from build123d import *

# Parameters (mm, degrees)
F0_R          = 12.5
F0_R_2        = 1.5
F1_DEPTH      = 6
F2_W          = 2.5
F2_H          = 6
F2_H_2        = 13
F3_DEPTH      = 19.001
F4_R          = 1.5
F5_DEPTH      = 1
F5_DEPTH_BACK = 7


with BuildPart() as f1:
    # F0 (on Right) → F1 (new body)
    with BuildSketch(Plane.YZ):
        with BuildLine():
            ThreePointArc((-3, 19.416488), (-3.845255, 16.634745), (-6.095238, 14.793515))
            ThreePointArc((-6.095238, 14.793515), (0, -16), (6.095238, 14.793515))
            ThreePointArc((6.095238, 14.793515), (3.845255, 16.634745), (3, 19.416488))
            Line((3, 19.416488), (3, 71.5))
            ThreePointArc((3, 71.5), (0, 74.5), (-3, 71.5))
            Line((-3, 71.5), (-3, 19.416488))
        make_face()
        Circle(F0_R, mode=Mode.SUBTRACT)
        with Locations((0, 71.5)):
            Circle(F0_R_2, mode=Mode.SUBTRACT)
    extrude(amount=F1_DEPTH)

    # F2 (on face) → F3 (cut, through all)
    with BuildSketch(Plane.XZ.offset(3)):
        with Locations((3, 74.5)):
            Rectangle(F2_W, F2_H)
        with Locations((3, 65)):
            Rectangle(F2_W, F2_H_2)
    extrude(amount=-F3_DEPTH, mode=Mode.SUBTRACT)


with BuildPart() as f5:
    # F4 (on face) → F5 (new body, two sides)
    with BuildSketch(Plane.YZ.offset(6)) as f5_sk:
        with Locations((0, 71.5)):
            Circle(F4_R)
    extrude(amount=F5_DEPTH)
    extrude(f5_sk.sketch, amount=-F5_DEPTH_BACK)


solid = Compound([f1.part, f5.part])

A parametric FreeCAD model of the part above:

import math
import FreeCAD as App
import Part
import Sketcher
from FreeCAD import Vector

doc = App.newDocument("Part")
body = doc.addObject("PartDesign::Body", "Body")

# Sketch on YZ plane
sketch1 = doc.addObject("Sketcher::SketchObject", "Sketch")
body.addObject(sketch1)
sketch1.AttachmentSupport = (doc.YZ_Plane, [""])
sketch1.MapMode = "FlatFace"
sketch1.addGeometry([
    Part.ArcOfCircle(Part.Circle(Vector(-8, 19.4, 0), Vector(0, 0, 1), 5), math.radians(-68), math.radians(0)),  # 0
    Part.ArcOfCircle(Part.Circle(Vector(0, 0, 0), Vector(0, 0, 1), 16), math.radians(112), math.radians(428)),  # 1
    Part.ArcOfCircle(Part.Circle(Vector(8, 19.4, 0), Vector(0, 0, 1), 5), math.radians(180), math.radians(248)),  # 2
    Part.LineSegment(Vector(3, 19.4, 0), Vector(3, 71.5, 0)),  # 3
    Part.ArcOfCircle(Part.Circle(Vector(0, 71.5, 0), Vector(0, 0, 1), 3), math.radians(0), math.radians(180)),  # 4
    Part.LineSegment(Vector(-3, 71.5, 0), Vector(-3, 19.4, 0)),  # 5
    Part.Circle(Vector(0, 0, 0), Vector(0, 0, 1), 12.5),  # 6
    Part.Circle(Vector(0, 71.5, 0), Vector(0, 0, 1), 1.5),  # 7
], False)
sketch1.addConstraint([
    Sketcher.Constraint("Tangent", 0, 1, 1, 1),
    Sketcher.Constraint("Tangent", 1, 2, 2, 2),
    Sketcher.Constraint("Tangent", 2, 1, 3, 1),
    Sketcher.Constraint("Tangent", 3, 2, 4, 1),
    Sketcher.Constraint("Tangent", 4, 2, 5, 1),
    Sketcher.Constraint("Tangent", 5, 2, 0, 2),
    Sketcher.Constraint("Vertical", 3),
    Sketcher.Constraint("Vertical", 5),
    Sketcher.Constraint("Coincident", 1, 3, -1, 1),
    Sketcher.Constraint("Coincident", 6, 3, -1, 1),
    Sketcher.Constraint("Coincident", 7, 3, 4, 3),
    Sketcher.Constraint("Equal", 0, 2),
    Sketcher.Constraint("PointOnObject", 4, 3, -2),
    Sketcher.Constraint("Diameter", 6, 25.0),
    Sketcher.Constraint("Diameter", 7, 3.0),
    Sketcher.Constraint("Radius", 0, 4.999999),
    Sketcher.Constraint("Radius", 1, 16.0),
    Sketcher.Constraint("Radius", 4, 3.0),
    Sketcher.Constraint("DistanceY", -1, 1, 4, 3, 71.5),
])
pad1 = doc.addObject("PartDesign::Pad", "Pad")
body.addObject(pad1)
pad1.Profile = sketch1
pad1.Length = 6

# Sketch on XZ plane
sketch2 = doc.addObject("Sketcher::SketchObject", "Sketch001")
body.addObject(sketch2)
sketch2.AttachmentSupport = (doc.XZ_Plane, [""])
sketch2.MapMode = "FlatFace"
sketch2.AttachmentOffset = App.Placement(Vector(0, 0, 3), App.Rotation())
sketch2.addGeometry([
    Part.LineSegment(Vector(1.8, 77.5, 0), Vector(1.8, 58.5, 0)),
    Part.LineSegment(Vector(1.8, 58.5, 0), Vector(4.2, 58.5, 0)),
    Part.LineSegment(Vector(4.2, 58.5, 0), Vector(4.2, 77.5, 0)),
    Part.LineSegment(Vector(4.2, 77.5, 0), Vector(1.8, 77.5, 0)),
], False)
sketch2.addConstraint([
    Sketcher.Constraint("Coincident", 0, 2, 1, 1),
    Sketcher.Constraint("Coincident", 1, 2, 2, 1),
    Sketcher.Constraint("Coincident", 2, 2, 3, 1),
    Sketcher.Constraint("Coincident", 3, 2, 0, 1),
    Sketcher.Constraint("Vertical", 0),
    Sketcher.Constraint("Horizontal", 1),
    Sketcher.Constraint("Vertical", 2),
    Sketcher.Constraint("Horizontal", 3),
    Sketcher.Constraint("DistanceY", 0, 2, 0, 1, 19.0),
    Sketcher.Constraint("DistanceX", 1, 1, 1, 2, 2.5),
    Sketcher.Constraint("DistanceY", -1, 1, 0, 2, 58.5),
    Sketcher.Constraint("DistanceX", -1, 1, 0, 2, 1.75),
])
pocket1 = doc.addObject("PartDesign::Pocket", "Pocket")
body.addObject(pocket1)
pocket1.Profile = sketch2
pocket1.Type = "ThroughAll"
body2 = doc.addObject("PartDesign::Body", "Body001")

# Sketch on YZ plane
sketch3 = doc.addObject("Sketcher::SketchObject", "Sketch002")
body2.addObject(sketch3)
sketch3.AttachmentSupport = (doc.getObject("YZ_Plane001"), [""])
sketch3.MapMode = "FlatFace"
sketch3.AttachmentOffset = App.Placement(Vector(0, 0, 6), App.Rotation())
sketch3.addGeometry(Part.Circle(Vector(0, 71.5, 0), Vector(0, 0, 1), 1.5), False)
sketch3.addConstraint([
    Sketcher.Constraint("PointOnObject", 0, 3, -2),
    Sketcher.Constraint("Diameter", 0, 3.0),
    Sketcher.Constraint("DistanceY", -1, 1, 0, 3, 71.5),
])
pad2 = doc.addObject("PartDesign::Pad", "Pad001")
body2.addObject(pad2)
pad2.Profile = sketch3
pad2.Type = "TwoLengths"
pad2.Length = 1
pad2.Length2 = 7

doc.recompute()
